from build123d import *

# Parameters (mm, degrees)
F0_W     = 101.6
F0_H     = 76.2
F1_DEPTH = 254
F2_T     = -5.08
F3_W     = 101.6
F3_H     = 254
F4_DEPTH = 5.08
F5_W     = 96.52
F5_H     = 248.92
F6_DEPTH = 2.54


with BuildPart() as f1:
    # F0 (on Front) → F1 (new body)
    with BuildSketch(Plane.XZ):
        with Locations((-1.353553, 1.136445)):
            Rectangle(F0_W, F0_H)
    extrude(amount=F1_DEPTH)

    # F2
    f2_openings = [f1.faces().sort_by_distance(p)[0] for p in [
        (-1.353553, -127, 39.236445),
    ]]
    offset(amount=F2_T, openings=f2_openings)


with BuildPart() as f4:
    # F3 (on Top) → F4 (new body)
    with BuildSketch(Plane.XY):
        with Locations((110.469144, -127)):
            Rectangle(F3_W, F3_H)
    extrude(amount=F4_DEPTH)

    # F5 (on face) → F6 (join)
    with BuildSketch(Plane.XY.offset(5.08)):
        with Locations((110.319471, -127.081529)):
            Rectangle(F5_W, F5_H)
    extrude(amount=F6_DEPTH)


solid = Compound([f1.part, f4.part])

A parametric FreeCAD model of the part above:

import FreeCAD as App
import Part
import Sketcher
Q = App.Units.Quantity


def faces_at(feature, points):
    """Names of the faces that lie closest to the given points."""
    faces = feature.Shape.Faces
    near = lambda p: min(range(len(faces)), key=lambda i: faces[i].distToShape(Part.Vertex(*p))[0])
    return sorted({f"Face{near(p) + 1}" for p in points})


def add_polygon(sketch, points):
    """Adds a closed chain of lines whose ends are joined by coincident constraints."""
    first, n = sketch.GeometryCount, len(points)
    for a, b in zip(points, points[1:] + points[:1]):
        sketch.addGeometry(Part.LineSegment(App.Vector(*a, 0), App.Vector(*b, 0)), False)
    for i in range(n):
        sketch.addConstraint(Sketcher.Constraint("Coincident", first + i, 2, first + (i + 1) % n, 1))

doc = App.newDocument("Part")
body = doc.addObject("PartDesign::Body", "Body")

sketch1 = doc.addObject("Sketcher::SketchObject", "Sketch")
body.addObject(sketch1)
sketch1.AttachmentSupport = (doc.XZ_Plane, [""])
sketch1.MapMode = "FlatFace"
add_polygon(sketch1, [(-52, 39), (-52, -37), (49, -37), (49, 39)])
sketch1.addConstraint([
    Sketcher.Constraint("Vertical", 0),
    Sketcher.Constraint("Horizontal", 1),
    Sketcher.Constraint("Vertical", 2),
    Sketcher.Constraint("Horizontal", 3),
    Sketcher.Constraint("DistanceX", 1, 1, 1, 2, Q("4 in")),
    Sketcher.Constraint("DistanceY", 0, 2, 0, 1, Q("3 in")),
    Sketcher.Constraint("DistanceX", 0, 2, -1, 1, Q("52.153553 mm")),
    Sketcher.Constraint("DistanceY", 0, 2, -1, 1, Q("36.963555 mm")),
])
pad1 = doc.addObject("PartDesign::Pad", "Pad")
body.addObject(pad1)
pad1.Profile = sketch1
pad1.Length = Q("10 in")
doc.recompute()

thickness = doc.addObject("PartDesign::Thickness", "Thickness")
body.addObject(thickness)
thickness.Base = (pad1, faces_at(pad1, [(-1.354, -127, 39.236)]))
thickness.Value = Q("0.2 in")
thickness.Reversed = True
thickness.Join = "Arc"
body2 = doc.addObject("PartDesign::Body", "Body001")

sketch2 = doc.addObject("Sketcher::SketchObject", "Sketch001")
body2.addObject(sketch2)
sketch2.AttachmentSupport = (doc.getObject("XY_Plane001"), [""])
sketch2.MapMode = "FlatFace"
add_polygon(sketch2, [(60, 0), (60, -254), (161, -254), (161, 0)])
sketch2.addConstraint([
    Sketcher.Constraint("Vertical", 0),
    Sketcher.Constraint("Horizontal", 1),
    Sketcher.Constraint("Vertical", 2),
    Sketcher.Constraint("Horizontal", 3),
    Sketcher.Constraint("PointOnObject", 2, 2, -1),
    Sketcher.Constraint("DistanceX", 1, 1, 1, 2, Q("4 in")),
    Sketcher.Constraint("DistanceY", 0, 2, 0, 1, Q("10 in")),
    Sketcher.Constraint("DistanceX", -1, 1, 0, 2, Q("59.669144 mm")),
])
pad2 = doc.addObject("PartDesign::Pad", "Pad001")
body2.addObject(pad2)
pad2.Profile = sketch2
pad2.Length = Q("0.2 in")

sketch3 = doc.addObject("Sketcher::SketchObject", "Sketch002")
body2.addObject(sketch3)
sketch3.AttachmentSupport = (doc.getObject("XY_Plane001"), [""])
sketch3.MapMode = "FlatFace"
sketch3.AttachmentOffset = App.Placement(App.Vector(0, 0, 0.2 * 25.4), App.Rotation())
add_polygon(sketch3, [(62, -3), (62, -252), (159, -252), (159, -3)])
sketch3.addConstraint([
    Sketcher.Constraint("Vertical", 0),
    Sketcher.Constraint("Horizontal", 1),
    Sketcher.Constraint("Vertical", 2),
    Sketcher.Constraint("Horizontal", 3),
    Sketcher.Constraint("DistanceX", 1, 1, 1, 2, Q("3.8 in")),
    Sketcher.Constraint("DistanceY", 0, 2, 0, 1, Q("9.8 in")),
    Sketcher.Constraint("DistanceX", -1, 1, 0, 2, Q("62.059471 mm")),
    Sketcher.Constraint("DistanceY", 0, 2, -1, 1, Q("251.541529 mm")),
])
pad3 = doc.addObject("PartDesign::Pad", "Pad002")
body2.addObject(pad3)
pad3.Profile = sketch3
pad3.Length = Q("0.1 in")

doc.recompute()
